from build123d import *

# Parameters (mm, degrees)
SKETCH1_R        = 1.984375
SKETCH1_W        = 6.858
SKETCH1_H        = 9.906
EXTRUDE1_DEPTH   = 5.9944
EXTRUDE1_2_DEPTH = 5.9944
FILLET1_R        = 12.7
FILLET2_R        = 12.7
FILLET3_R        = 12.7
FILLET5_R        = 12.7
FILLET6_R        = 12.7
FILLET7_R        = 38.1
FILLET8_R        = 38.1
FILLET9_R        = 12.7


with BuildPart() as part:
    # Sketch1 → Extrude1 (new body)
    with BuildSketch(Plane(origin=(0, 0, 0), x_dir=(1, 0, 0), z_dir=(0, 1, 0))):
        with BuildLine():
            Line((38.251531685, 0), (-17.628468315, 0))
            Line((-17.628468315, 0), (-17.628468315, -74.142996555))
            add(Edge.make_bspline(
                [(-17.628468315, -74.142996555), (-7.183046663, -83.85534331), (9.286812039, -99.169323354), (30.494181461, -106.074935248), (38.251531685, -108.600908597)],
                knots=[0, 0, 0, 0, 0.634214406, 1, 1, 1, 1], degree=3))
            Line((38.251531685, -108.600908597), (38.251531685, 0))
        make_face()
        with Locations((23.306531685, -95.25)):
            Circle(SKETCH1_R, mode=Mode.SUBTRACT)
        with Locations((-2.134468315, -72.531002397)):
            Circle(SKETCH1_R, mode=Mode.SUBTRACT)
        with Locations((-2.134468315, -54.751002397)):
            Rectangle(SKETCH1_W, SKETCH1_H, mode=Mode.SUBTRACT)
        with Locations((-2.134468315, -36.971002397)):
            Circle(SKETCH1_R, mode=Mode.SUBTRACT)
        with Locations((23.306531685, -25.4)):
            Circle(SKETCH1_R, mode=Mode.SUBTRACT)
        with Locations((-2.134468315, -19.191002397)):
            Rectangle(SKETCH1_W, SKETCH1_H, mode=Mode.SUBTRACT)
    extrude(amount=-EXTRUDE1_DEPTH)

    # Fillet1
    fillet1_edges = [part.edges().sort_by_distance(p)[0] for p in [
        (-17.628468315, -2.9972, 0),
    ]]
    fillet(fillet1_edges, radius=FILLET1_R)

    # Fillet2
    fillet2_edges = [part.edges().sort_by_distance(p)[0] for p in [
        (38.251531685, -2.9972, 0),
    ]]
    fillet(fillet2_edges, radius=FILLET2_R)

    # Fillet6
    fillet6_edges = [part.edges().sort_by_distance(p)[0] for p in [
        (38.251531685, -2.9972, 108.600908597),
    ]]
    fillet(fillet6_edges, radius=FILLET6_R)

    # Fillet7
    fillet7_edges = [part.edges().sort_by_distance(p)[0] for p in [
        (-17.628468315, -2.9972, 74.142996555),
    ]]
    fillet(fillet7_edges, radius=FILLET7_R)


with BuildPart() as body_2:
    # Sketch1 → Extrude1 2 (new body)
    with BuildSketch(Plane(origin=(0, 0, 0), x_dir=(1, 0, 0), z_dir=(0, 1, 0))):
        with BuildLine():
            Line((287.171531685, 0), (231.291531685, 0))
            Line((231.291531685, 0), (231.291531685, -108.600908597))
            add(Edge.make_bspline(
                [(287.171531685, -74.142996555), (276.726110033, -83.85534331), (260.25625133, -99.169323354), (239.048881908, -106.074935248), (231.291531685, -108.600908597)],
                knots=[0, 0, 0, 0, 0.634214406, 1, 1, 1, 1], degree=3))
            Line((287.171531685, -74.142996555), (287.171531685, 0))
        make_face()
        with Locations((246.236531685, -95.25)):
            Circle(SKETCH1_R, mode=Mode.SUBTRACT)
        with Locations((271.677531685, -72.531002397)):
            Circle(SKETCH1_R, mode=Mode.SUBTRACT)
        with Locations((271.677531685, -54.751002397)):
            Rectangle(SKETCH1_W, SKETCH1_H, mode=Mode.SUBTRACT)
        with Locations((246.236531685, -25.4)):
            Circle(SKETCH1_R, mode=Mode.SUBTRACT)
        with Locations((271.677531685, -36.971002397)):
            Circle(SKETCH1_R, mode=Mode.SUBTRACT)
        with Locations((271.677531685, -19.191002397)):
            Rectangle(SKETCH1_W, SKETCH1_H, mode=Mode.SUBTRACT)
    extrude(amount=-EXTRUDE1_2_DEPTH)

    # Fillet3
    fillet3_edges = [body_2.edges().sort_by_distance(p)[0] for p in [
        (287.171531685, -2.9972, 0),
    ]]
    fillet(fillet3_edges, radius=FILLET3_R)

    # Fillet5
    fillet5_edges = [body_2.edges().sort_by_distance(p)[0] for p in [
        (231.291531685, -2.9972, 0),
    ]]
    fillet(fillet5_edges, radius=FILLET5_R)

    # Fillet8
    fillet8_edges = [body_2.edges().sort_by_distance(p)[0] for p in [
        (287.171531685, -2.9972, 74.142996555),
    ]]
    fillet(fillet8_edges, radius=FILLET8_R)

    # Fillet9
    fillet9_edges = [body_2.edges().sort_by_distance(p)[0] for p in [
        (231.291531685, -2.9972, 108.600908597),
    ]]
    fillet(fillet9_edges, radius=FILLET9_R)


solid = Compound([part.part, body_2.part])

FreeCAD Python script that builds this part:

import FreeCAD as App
import Part
import Sketcher
from FreeCAD import Vector
Q = App.Units.Quantity


def edges_at(feature, points):
    """Names of the edges that pass closest to the given points."""
    edges = feature.Shape.Edges
    near = lambda p: min(range(len(edges)), key=lambda i: edges[i].distToShape(Part.Vertex(*p))[0])
    return sorted({f"Edge{near(p) + 1}" for p in points})


def add_polygon(sketch, points):
    """Adds a closed chain of lines whose ends are joined by coincident constraints."""
    first, n = sketch.GeometryCount, len(points)
    for a, b in zip(points, points[1:] + points[:1]):
        sketch.addGeometry(Part.LineSegment(App.Vector(*a, 0), App.Vector(*b, 0)), False)
    for i in range(n):
        sketch.addConstraint(Sketcher.Constraint("Coincident", first + i, 2, first + (i + 1) % n, 1))

doc = App.newDocument("Part")
body = doc.addObject("PartDesign::Body", "Body")

sketch1 = body.newObject("Sketcher::SketchObject", "Sketch")
sketch1.AttachmentSupport = (doc.getObject("XZ_Plane"), [""])
sketch1.MapMode = "FlatFace"
sketch1.addGeometry(Part.LineSegment(Vector(38.251532, 0, 0), Vector(-17.628468, 0, 0)), False)
sketch1.addGeometry(Part.LineSegment(Vector(-17.628468, 0, 0), Vector(-17.628468, 74.142997, 0)), False)
sketch1.addGeometry(Part.BSplineCurve([Vector(-17.628468, 74.142997, 0), Vector(-7.183047, 83.855343, 0), Vector(9.286812, 99.169323, 0), Vector(30.494181, 106.074935, 0), Vector(38.251532, 108.600909, 0)], [4, 1, 4], [0, 0.634214406, 1], False, 3, [1, 1, 1, 1, 1], False), False)
sketch1.addGeometry(Part.LineSegment(Vector(38.251532, 108.600909, 0), Vector(38.251532, 0, 0)), False)
sketch1.addGeometry(Part.Circle(Vector(-2.134468, 72.531002, 0), Vector(0, 0, 1), 1.984375), False)
sketch1.addGeometry(Part.Circle(Vector(23.306532, 95.25, 0), Vector(0, 0, 1), 1.984375), False)
add_polygon(sketch1, [(1.294532, 59.704002), (-5.563468, 59.704002), (-5.563468, 49.798002), (1.294532, 49.798002)])
sketch1.addGeometry(Part.Circle(Vector(-2.134468, 36.971002, 0), Vector(0, 0, 1), 1.984375), False)
add_polygon(sketch1, [(1.294532, 24.144002), (-5.563468, 24.144002), (-5.563468, 14.238002), (1.294532, 14.238002)])
sketch1.addGeometry(Part.Circle(Vector(23.306532, 25.4, 0), Vector(0, 0, 1), 1.984375), False)
sketch1.addConstraint([
    Sketcher.Constraint("Block", 2),
    Sketcher.Constraint("Coincident", 0, 2, 1, 1),
    Sketcher.Constraint("Coincident", 1, 2, 2, 1),
    Sketcher.Constraint("Coincident", 2, 2, 3, 1),
    Sketcher.Constraint("Coincident", 3, 2, 0, 1),
    Sketcher.Constraint("Horizontal", 0),
    Sketcher.Constraint("Vertical", 1),
    Sketcher.Constraint("Vertical", 3),
    Sketcher.Constraint("Horizontal", 6),
    Sketcher.Constraint("Vertical", 7),
    Sketcher.Constraint("Horizontal", 8),
    Sketcher.Constraint("Vertical", 9),
    Sketcher.Constraint("Horizontal", 11),
    Sketcher.Constraint("Vertical", 12),
    Sketcher.Constraint("Horizontal", 13),
    Sketcher.Constraint("Vertical", 14),
    Sketcher.Constraint("Equal", 4, 5),
    Sketcher.Constraint("Equal", 5, 10),
    Sketcher.Constraint("Equal", 10, 15),
    Sketcher.Constraint("PointOnObject", 0, 2, -1),
    Sketcher.Constraint("Vertical", 4, 3, 10, 3),
    Sketcher.Constraint("Vertical", 5, 3, 15, 3),
    Sketcher.Constraint("Vertical", 7, 2, 11, 2),
    Sketcher.Constraint("Vertical", 9, 2, 13, 2),
    Sketcher.Constraint("Equal", 9, 12),
    Sketcher.Constraint("Diameter", 4, Q("0.15625 in")),
    Sketcher.Constraint("DistanceY", -1, 1, 15, 3, Q("1 in")),
    Sketcher.Constraint("DistanceX", 6, 2, 6, 1, Q("0.27 in")),
    Sketcher.Constraint("DistanceY", 7, 2, 7, 1, Q("0.39 in")),
    Sketcher.Constraint("DistanceY", 10, 3, 4, 3, Q("1.4 in")),
    Sketcher.Constraint("DistanceY", 12, 2, 7, 2, Q("1.4 in")),
    Sketcher.Constraint("DistanceY", -1, 1, 5, 3, Q("3.75 in")),
    Sketcher.Constraint("DistanceX", 0, 2, 10, 3, Q("0.61 in")),
    Sketcher.Constraint("DistanceX", 6, 2, 4, 3, Q("0.135 in")),
    Sketcher.Constraint("DistanceY", 6, 2, 4, 3, Q("0.505 in")),
    Sketcher.Constraint("DistanceX", 4, 3, 5, 3, 25.441),
    Sketcher.Constraint("DistanceY", -1, 1, 4, 3, 72.531002),
])
pad1 = body.newObject("PartDesign::Pad", "Pad")
pad1.Profile = sketch1
pad1.Length = Q("0.236 in")
doc.recompute()

fillet = body.newObject("PartDesign::Fillet", "Fillet")
fillet.Base = (pad1, edges_at(pad1, [(-17.628, -2.997, 0)]))
fillet.Radius = Q("0.5 in")
doc.recompute()

fillet2 = body.newObject("PartDesign::Fillet", "Fillet001")
fillet2.Base = (fillet, edges_at(fillet, [(38.252, -2.997, 0)]))
fillet2.Radius = Q("0.5 in")
doc.recompute()

fillet3 = body.newObject("PartDesign::Fillet", "Fillet002")
fillet3.Base = (fillet2, edges_at(fillet2, [(38.252, -2.997, 108.601)]))
fillet3.Radius = Q("0.5 in")
doc.recompute()

fillet4 = body.newObject("PartDesign::Fillet", "Fillet003")
fillet4.Base = (fillet3, edges_at(fillet3, [(-17.628, -2.997, 74.143)]))
fillet4.Radius = Q("1.5 in")
body2 = doc.addObject("PartDesign::Body", "Body001")

sketch2 = body2.newObject("Sketcher::SketchObject", "Sketch001")
sketch2.AttachmentSupport = (doc.getObject("XZ_Plane001"), [""])
sketch2.MapMode = "FlatFace"
sketch2.addGeometry(Part.LineSegment(Vector(287.171532, 0, 0), Vector(231.291532, 0, 0)), False)
sketch2.addGeometry(Part.LineSegment(Vector(231.291532, 0, 0), Vector(231.291532, 108.600909, 0)), False)
sketch2.addGeometry(Part.BSplineCurve([Vector(287.171532, 74.142997, 0), Vector(276.72611, 83.855343, 0), Vector(260.256251, 99.169323, 0), Vector(239.048882, 106.074935, 0), Vector(231.291532, 108.600909, 0)], [4, 1, 4], [0, 0.634214406, 1], False, 3, [1, 1, 1, 1, 1], False), False)
sketch2.addGeometry(Part.LineSegment(Vector(287.171532, 74.142997, 0), Vector(287.171532, 0, 0)), False)
sketch2.addGeometry(Part.Circle(Vector(246.236532, 95.25, 0), Vector(0, 0, 1), 1.984375), False)
sketch2.addGeometry(Part.Circle(Vector(271.677532, 72.531002, 0), Vector(0, 0, 1), 1.984375), False)
sketch2.addGeometry(Part.Circle(Vector(246.236532, 25.4, 0), Vector(0, 0, 1), 1.984375), False)
add_polygon(sketch2, [(275.106532, 59.704002), (268.248532, 59.704002), (268.248532, 49.798002), (275.106532, 49.798002)])
sketch2.addGeometry(Part.Circle(Vector(271.677532, 36.971002, 0), Vector(0, 0, 1), 1.984375), False)
add_polygon(sketch2, [(275.106532, 24.144002), (268.248532, 24.144002), (268.248532, 14.238002), (275.106532, 14.238002)])
sketch2.addConstraint([
    Sketcher.Constraint("Block", 2),
    Sketcher.Constraint("Coincident", 0, 2, 1, 1),
    Sketcher.Constraint("Coincident", 1, 2, 2, 2),
    Sketcher.Constraint("Coincident", 2, 1, 3, 1),
    Sketcher.Constraint("Coincident", 3, 2, 0, 1),
    Sketcher.Constraint("Horizontal", 0),
    Sketcher.Constraint("Vertical", 1),
    Sketcher.Constraint("Vertical", 3),
    Sketcher.Constraint("Horizontal", 7),
    Sketcher.Constraint("Vertical", 8),
    Sketcher.Constraint("Horizontal", 9),
    Sketcher.Constraint("Vertical", 10),
    Sketcher.Constraint("Horizontal", 12),
    Sketcher.Constraint("Vertical", 13),
    Sketcher.Constraint("Horizontal", 14),
    Sketcher.Constraint("Vertical", 15),
    Sketcher.Constraint("Equal", 4, 5),
    Sketcher.Constraint("Equal", 5, 6),
    Sketcher.Constraint("Equal", 6, 11),
    Sketcher.Constraint("PointOnObject", 0, 2, -1),
    Sketcher.Constraint("Vertical", 4, 3, 6, 3),
    Sketcher.Constraint("Vertical", 5, 3, 11, 3),
    Sketcher.Constraint("Vertical", 8, 2, 12, 2),
    Sketcher.Constraint("Vertical", 10, 2, 14, 2),
    Sketcher.Constraint("Equal", 10, 13),
    Sketcher.Constraint("Diameter", 4, Q("0.15625 in")),
    Sketcher.Constraint("DistanceY", -1, 1, 6, 3, Q("1 in")),
    Sketcher.Constraint("DistanceX", 7, 2, 7, 1, Q("0.27 in")),
    Sketcher.Constraint("DistanceY", 8, 2, 8, 1, Q("0.39 in")),
    Sketcher.Constraint("DistanceY", 11, 3, 5, 3, Q("1.4 in")),
    Sketcher.Constraint("DistanceY", 13, 2, 8, 2, Q("1.4 in")),
    Sketcher.Constraint("DistanceY", -1, 1, 4, 3, Q("3.75 in")),
    Sketcher.Constraint("DistanceX", 0, 2, 11, 3, Q("1.59 in")),
    Sketcher.Constraint("DistanceX", 7, 2, 5, 3, Q("0.135 in")),
    Sketcher.Constraint("DistanceY", 7, 2, 5, 3, Q("0.505 in")),
    Sketcher.Constraint("DistanceX", 4, 3, 5, 3, 25.441),
    Sketcher.Constraint("DistanceY", -1, 1, 5, 3, 72.531002),
])
pad2 = body2.newObject("PartDesign::Pad", "Pad001")
pad2.Profile = sketch2
pad2.Length = Q("0.236 in")
doc.recompute()

fillet5 = body2.newObject("PartDesign::Fillet", "Fillet004")
fillet5.Base = (pad2, edges_at(pad2, [(287.172, -2.997, 0)]))
fillet5.Radius = Q("0.5 in")
doc.recompute()

fillet6 = body2.newObject("PartDesign::Fillet", "Fillet005")
fillet6.Base = (fillet5, edges_at(fillet5, [(231.292, -2.997, 0)]))
fillet6.Radius = Q("0.5 in")
doc.recompute()

fillet7 = body2.newObject("PartDesign::Fillet", "Fillet006")
fillet7.Base = (fillet6, edges_at(fillet6, [(287.172, -2.997, 74.143)]))
fillet7.Radius = Q("1.5 in")
doc.recompute()

fillet8 = body2.newObject("PartDesign::Fillet", "Fillet007")
fillet8.Base = (fillet7, edges_at(fillet7, [(231.292, -2.997, 108.601)]))
fillet8.Radius = Q("0.5 in")

doc.recompute()
